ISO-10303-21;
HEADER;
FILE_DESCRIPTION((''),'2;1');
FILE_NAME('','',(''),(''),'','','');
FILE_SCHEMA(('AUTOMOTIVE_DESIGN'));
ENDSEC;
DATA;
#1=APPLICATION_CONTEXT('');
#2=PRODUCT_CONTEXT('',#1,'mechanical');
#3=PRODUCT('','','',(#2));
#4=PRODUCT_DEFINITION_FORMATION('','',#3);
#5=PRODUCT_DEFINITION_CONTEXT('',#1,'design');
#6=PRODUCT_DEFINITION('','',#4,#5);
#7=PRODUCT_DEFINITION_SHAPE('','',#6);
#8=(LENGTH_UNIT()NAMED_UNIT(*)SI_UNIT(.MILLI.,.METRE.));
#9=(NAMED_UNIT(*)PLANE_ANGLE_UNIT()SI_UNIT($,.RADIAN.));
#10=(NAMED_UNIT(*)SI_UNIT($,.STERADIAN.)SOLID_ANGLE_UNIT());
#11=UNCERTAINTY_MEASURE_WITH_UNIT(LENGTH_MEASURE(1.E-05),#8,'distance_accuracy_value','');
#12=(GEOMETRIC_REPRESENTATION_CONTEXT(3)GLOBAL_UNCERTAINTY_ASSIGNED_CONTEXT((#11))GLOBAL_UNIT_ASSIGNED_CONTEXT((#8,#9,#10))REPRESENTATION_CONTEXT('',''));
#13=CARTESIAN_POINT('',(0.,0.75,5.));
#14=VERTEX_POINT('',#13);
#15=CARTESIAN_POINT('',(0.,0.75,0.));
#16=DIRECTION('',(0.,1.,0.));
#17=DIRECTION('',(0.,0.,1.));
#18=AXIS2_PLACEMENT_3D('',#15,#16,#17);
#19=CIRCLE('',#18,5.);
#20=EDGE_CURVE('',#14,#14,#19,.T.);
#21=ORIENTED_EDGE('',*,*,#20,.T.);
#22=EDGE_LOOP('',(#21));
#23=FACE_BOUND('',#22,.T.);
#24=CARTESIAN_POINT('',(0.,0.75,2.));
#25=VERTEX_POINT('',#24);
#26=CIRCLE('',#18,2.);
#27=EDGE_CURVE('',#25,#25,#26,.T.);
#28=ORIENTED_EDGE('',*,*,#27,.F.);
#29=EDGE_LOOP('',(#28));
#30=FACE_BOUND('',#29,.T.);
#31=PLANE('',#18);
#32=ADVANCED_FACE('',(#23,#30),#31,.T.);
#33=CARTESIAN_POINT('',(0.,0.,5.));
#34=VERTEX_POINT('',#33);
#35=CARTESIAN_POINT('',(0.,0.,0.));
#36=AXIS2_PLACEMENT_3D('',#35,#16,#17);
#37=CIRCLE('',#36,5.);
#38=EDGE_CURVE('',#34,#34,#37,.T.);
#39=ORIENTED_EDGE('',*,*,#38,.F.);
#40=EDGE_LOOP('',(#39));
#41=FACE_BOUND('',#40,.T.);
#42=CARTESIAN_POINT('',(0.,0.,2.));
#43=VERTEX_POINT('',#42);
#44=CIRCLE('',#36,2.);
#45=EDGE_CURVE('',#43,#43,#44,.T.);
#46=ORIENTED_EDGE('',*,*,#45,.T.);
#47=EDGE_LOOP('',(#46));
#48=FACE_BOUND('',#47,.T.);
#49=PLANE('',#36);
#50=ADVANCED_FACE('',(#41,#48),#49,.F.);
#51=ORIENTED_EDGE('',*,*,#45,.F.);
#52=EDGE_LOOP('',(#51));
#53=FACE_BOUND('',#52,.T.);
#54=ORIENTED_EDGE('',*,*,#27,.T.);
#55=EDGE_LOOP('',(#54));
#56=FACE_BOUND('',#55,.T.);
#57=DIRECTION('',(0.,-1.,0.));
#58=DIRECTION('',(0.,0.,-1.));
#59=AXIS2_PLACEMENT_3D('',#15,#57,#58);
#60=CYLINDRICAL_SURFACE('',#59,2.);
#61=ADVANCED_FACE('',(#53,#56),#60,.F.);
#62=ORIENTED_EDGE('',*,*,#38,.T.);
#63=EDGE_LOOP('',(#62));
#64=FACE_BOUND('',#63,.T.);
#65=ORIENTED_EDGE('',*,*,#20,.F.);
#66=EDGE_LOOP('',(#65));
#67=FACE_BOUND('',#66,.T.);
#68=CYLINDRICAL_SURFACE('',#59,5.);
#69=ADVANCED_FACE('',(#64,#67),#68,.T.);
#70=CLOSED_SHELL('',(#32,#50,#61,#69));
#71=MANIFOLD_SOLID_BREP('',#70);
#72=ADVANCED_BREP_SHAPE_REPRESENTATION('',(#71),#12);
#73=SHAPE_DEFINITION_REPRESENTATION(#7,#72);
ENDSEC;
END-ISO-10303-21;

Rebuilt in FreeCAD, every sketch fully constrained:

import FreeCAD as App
import Part
import Sketcher

V = App.Vector
Q = App.Units.Quantity

doc = App.newDocument("Part")
body = doc.addObject("PartDesign::Body", "Body")

# Sketch on XZ plane
sketch1 = doc.addObject("Sketcher::SketchObject", "Sketch")
body.addObject(sketch1)
sketch1.AttachmentSupport = (doc.XZ_Plane, [""])
sketch1.MapMode = "FlatFace"
sketch1.addGeometry(Part.Circle(V(0, 0, 0), V(0, 0, 1), 5), False)
sketch1.addGeometry(Part.Circle(V(0, 0, 0), V(0, 0, 1), 2), False)
sketch1.addConstraint(Sketcher.Constraint("Coincident", 0, 3, -1, 1))
sketch1.addConstraint(Sketcher.Constraint("Coincident", 1, 3, -1, 1))
sketch1.addConstraint(Sketcher.Constraint("Diameter", 0, Q("10 mm")))
sketch1.addConstraint(Sketcher.Constraint("Diameter", 1, Q("4 mm")))
pad1 = doc.addObject("PartDesign::Pad", "Pad")
body.addObject(pad1)
pad1.Profile = sketch1
pad1.Length = 0.75
pad1.Reversed = True

doc.recompute()
